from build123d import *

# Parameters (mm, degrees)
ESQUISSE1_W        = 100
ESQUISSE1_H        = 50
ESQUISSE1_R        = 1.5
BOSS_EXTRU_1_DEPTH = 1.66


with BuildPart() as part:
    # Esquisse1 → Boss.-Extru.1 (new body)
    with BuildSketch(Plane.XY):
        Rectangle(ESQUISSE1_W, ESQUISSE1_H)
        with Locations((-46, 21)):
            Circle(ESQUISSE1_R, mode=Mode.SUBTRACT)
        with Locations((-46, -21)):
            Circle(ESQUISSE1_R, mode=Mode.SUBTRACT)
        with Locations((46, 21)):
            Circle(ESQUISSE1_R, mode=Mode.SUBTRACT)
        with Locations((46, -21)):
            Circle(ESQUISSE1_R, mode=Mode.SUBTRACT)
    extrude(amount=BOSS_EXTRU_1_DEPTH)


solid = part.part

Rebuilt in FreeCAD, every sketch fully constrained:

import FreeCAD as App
import Part
import Sketcher

V = App.Vector

doc = App.newDocument("Part")
body = doc.addObject("PartDesign::Body", "Body")

sketch1 = body.newObject("Sketcher::SketchObject", "Sketch")
sketch1.AttachmentSupport = (doc.getObject("XY_Plane"), [""])
sketch1.MapMode = "FlatFace"
sketch1.addGeometry([
    Part.LineSegment(V(-50, 25, 0), V(-50, -25, 0)),
    Part.LineSegment(V(-50, -25, 0), V(50, -25, 0)),
    Part.LineSegment(V(50, -25, 0), V(50, 25, 0)),
    Part.LineSegment(V(50, 25, 0), V(-50, 25, 0)),
    Part.Circle(V(-46, -21, 0), V(0, 0, 1), 1.5),
    Part.Circle(V(46, -21, 0), V(0, 0, 1), 1.5),
    Part.Circle(V(-46, 21, 0), V(0, 0, 1), 1.5),
    Part.Circle(V(46, 21, 0), V(0, 0, 1), 1.5),
], False)
sketch1.addConstraint([
    Sketcher.Constraint("Coincident", 0, 2, 1, 1),
    Sketcher.Constraint("Coincident", 1, 2, 2, 1),
    Sketcher.Constraint("Coincident", 2, 2, 3, 1),
    Sketcher.Constraint("Coincident", 3, 2, 0, 1),
    Sketcher.Constraint("Vertical", 0),
    Sketcher.Constraint("Horizontal", 1),
    Sketcher.Constraint("Vertical", 2),
    Sketcher.Constraint("Horizontal", 3),
    Sketcher.Constraint("Equal", 4, 5),
    Sketcher.Constraint("Equal", 5, 6),
    Sketcher.Constraint("Equal", 6, 7),
    Sketcher.Constraint("Symmetric", 5, 3, 6, 3, -1, 1),
    Sketcher.Constraint("Symmetric", 4, 3, 7, 3, -1, 1),
    Sketcher.Constraint("Symmetric", 0, 2, 2, 2, -1, 1),
    Sketcher.Constraint("Symmetric", 4, 3, 5, 3, -2),
    Sketcher.Constraint("Diameter", 4, 3.0),
    Sketcher.Constraint("DistanceX", 1, 1, 1, 2, 100.0),
    Sketcher.Constraint("DistanceY", 0, 2, 0, 1, 50.0),
    Sketcher.Constraint("DistanceX", 4, 3, -1, 1, 46.0),
    Sketcher.Constraint("DistanceY", 4, 3, -1, 1, 21.0),
])
pad1 = body.newObject("PartDesign::Pad", "Pad")
pad1.Profile = sketch1
pad1.Length = 1.66

doc.recompute()
